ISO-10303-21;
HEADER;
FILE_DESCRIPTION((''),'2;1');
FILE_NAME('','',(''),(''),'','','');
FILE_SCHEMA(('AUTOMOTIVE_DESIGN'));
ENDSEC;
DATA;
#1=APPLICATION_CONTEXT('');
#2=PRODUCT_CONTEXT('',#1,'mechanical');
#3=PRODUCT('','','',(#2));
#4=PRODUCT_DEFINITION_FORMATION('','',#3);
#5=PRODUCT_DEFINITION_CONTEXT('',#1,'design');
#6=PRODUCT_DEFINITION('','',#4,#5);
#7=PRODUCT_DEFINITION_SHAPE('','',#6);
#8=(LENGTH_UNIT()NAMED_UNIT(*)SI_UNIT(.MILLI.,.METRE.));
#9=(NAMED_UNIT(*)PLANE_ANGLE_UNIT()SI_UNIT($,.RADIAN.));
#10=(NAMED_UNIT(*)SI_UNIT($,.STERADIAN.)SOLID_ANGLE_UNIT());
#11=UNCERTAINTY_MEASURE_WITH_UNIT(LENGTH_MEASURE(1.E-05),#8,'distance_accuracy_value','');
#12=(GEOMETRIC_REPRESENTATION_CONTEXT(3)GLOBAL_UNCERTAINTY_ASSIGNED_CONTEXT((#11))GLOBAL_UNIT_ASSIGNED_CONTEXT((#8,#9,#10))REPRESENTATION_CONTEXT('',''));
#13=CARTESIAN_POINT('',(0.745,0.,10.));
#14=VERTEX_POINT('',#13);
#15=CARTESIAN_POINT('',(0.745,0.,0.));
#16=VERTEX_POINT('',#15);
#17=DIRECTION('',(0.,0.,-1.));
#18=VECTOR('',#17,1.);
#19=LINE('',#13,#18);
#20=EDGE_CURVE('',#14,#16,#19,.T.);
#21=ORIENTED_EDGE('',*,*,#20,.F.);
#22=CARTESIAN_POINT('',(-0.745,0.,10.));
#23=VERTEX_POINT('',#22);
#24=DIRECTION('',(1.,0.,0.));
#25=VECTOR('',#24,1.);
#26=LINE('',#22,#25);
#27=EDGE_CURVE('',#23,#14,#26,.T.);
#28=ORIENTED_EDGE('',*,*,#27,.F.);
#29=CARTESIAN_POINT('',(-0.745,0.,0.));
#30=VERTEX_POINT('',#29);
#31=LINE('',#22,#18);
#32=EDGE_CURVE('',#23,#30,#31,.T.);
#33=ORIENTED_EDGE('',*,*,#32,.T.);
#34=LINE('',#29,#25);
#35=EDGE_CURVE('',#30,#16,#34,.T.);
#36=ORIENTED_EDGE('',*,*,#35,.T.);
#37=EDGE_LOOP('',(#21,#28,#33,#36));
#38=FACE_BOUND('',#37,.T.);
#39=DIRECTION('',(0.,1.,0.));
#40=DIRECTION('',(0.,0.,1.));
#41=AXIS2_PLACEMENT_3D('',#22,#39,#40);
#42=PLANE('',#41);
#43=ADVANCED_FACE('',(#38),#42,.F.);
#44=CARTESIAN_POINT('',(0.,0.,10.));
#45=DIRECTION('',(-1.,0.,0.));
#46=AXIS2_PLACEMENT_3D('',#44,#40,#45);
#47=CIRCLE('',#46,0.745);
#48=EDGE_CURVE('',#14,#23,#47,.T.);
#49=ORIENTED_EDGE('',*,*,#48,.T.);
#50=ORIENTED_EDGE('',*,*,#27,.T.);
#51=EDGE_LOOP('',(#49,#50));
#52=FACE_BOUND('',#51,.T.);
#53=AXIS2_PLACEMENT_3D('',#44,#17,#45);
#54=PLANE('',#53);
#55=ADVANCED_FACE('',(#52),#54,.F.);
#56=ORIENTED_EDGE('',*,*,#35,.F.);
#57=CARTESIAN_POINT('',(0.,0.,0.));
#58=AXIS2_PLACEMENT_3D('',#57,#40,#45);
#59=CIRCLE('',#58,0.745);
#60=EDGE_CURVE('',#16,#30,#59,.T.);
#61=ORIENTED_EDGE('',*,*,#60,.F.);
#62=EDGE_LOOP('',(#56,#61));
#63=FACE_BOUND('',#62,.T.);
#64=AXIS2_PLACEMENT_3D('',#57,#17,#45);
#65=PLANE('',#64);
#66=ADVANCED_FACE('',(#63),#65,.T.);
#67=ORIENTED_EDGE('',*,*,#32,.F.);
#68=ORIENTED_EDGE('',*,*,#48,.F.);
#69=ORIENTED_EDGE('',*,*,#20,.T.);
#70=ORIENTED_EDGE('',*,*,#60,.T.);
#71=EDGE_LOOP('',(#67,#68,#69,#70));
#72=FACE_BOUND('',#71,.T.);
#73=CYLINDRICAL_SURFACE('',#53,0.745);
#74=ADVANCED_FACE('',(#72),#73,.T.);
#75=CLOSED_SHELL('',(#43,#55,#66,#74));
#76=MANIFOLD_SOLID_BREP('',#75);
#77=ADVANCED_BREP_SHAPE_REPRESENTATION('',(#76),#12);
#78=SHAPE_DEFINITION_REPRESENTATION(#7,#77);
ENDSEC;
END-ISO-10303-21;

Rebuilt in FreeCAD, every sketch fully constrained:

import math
import FreeCAD as App
import Part
import Sketcher
Q = App.Units.Quantity

doc = App.newDocument("Part")
body = doc.addObject("PartDesign::Body", "Body")

# Sketch on XY plane
sketch1 = body.newObject("Sketcher::SketchObject", "Sketch")
sketch1.AttachmentSupport = (doc.getObject("XY_Plane"), [""])
sketch1.MapMode = "FlatFace"
sketch1.addGeometry([
    Part.LineSegment(App.Vector(-0.7, 0, 0), App.Vector(0.7, 0, 0)),
    Part.ArcOfCircle(Part.Circle(App.Vector(0, 0, 0), App.Vector(0, 0, 1), 0.7), math.radians(0), math.radians(180)),
], False)
sketch1.addConstraint([
    Sketcher.Constraint("Coincident", 0, 1, 1, 2),
    Sketcher.Constraint("Coincident", 1, 1, 0, 2),
    Sketcher.Constraint("Horizontal", 0),
    Sketcher.Constraint("Coincident", 1, 3, -1, 1),
    Sketcher.Constraint("PointOnObject", 0, 1, -1),
    Sketcher.Constraint("Radius", 1, Q("0.745 mm")),
])
pad1 = body.newObject("PartDesign::Pad", "Pad")
pad1.Profile = sketch1
pad1.Length = 10

doc.recompute()
